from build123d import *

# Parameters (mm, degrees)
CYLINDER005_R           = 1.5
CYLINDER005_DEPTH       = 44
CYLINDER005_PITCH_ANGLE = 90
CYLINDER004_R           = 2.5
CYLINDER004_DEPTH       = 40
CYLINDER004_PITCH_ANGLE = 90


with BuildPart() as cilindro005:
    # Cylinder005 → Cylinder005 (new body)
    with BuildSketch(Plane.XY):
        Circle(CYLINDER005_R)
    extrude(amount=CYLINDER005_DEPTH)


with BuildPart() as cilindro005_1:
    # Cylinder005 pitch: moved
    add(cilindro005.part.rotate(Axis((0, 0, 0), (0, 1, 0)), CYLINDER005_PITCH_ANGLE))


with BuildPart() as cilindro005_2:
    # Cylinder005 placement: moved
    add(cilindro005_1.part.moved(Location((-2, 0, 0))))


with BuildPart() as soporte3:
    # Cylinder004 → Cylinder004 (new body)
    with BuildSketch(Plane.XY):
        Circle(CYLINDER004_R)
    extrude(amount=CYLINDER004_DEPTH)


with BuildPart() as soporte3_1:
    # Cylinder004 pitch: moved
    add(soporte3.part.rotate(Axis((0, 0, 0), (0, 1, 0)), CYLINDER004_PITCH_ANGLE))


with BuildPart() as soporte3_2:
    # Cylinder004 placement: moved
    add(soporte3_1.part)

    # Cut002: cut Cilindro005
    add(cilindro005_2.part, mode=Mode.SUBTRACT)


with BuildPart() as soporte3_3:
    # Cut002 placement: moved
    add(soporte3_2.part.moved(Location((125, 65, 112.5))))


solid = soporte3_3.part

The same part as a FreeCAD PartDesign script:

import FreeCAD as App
import Part
import Sketcher

V = App.Vector

doc = App.newDocument("Part")
params = doc.addObject("Spreadsheet::Sheet", "Params")
for row, (alias, value) in enumerate([
    ("sketch1_diameter", "3 mm"),
    ("pad1_length", "44 mm"),
    ("sketch2_diameter", "5 mm"),
    ("pad2_length", "40 mm"),
], start=1):
    params.set(f"A{row}", alias)
    params.set(f"B{row}", "=" + value)
    params.setAlias(f"B{row}", alias)

body = doc.addObject("PartDesign::Body", "Body")

sketch1 = body.newObject("Sketcher::SketchObject", "Sketch")
sketch1.AttachmentSupport = (doc.getObject("XY_Plane"), [""])
sketch1.MapMode = "FlatFace"
sketch1.addGeometry(Part.Circle(V(0, 0, 0), V(0, 0, 1), 1.5), False)
sketch1.addConstraint([
    Sketcher.Constraint("Coincident", 0, 3, -1, 1),
    Sketcher.Constraint("Diameter", 0, 3.0),
])
sketch1.setExpression("Constraints[1]", "Params.sketch1_diameter")
pad1 = body.newObject("PartDesign::Pad", "Pad")
pad1.Profile = sketch1
pad1.setExpression("Length", "Params.pad1_length")
body2 = doc.addObject("PartDesign::Body", "Body001")
doc.recompute()

body.Placement = App.Placement(V(0, 0, 0), App.Rotation(V(0, 1, 0), 90))
boolean = body2.newObject("PartDesign::Boolean", "Boolean")
boolean.Type = "Fuse"
boolean.addObjects([body])
body3 = doc.addObject("PartDesign::Body", "Body002")
doc.recompute()

body2.Placement = App.Placement(V(-2, 0, 0), App.Rotation(V(0, 0, 1), 0))
boolean2 = body3.newObject("PartDesign::Boolean", "Boolean001")
boolean2.Type = "Fuse"
boolean2.addObjects([body2])
body4 = doc.addObject("PartDesign::Body", "Body003")

sketch2 = body4.newObject("Sketcher::SketchObject", "Sketch001")
sketch2.AttachmentSupport = (doc.getObject("XY_Plane003"), [""])
sketch2.MapMode = "FlatFace"
sketch2.addGeometry(Part.Circle(V(0, 0, 0), V(0, 0, 1), 2.5), False)
sketch2.addConstraint([
    Sketcher.Constraint("Coincident", 0, 3, -1, 1),
    Sketcher.Constraint("Diameter", 0, 5.0),
])
sketch2.setExpression("Constraints[1]", "Params.sketch2_diameter")
pad2 = body4.newObject("PartDesign::Pad", "Pad001")
pad2.Profile = sketch2
pad2.setExpression("Length", "Params.pad2_length")
body5 = doc.addObject("PartDesign::Body", "Body004")
doc.recompute()

body4.Placement = App.Placement(V(0, 0, 0), App.Rotation(V(0, 1, 0), 90))
boolean3 = body5.newObject("PartDesign::Boolean", "Boolean002")
boolean3.Type = "Fuse"
boolean3.addObjects([body4])
doc.recompute()

boolean4 = body5.newObject("PartDesign::Boolean", "Boolean003")
boolean4.Type = "Cut"
boolean4.addObjects([body3])
body6 = doc.addObject("PartDesign::Body", "Body005")
doc.recompute()

body5.Placement = App.Placement(V(125, 65, 112.5), App.Rotation(V(0, 0, 1), 0))
boolean5 = body6.newObject("PartDesign::Boolean", "Boolean004")
boolean5.Type = "Fuse"
boolean5.addObjects([body5])

doc.recompute()
